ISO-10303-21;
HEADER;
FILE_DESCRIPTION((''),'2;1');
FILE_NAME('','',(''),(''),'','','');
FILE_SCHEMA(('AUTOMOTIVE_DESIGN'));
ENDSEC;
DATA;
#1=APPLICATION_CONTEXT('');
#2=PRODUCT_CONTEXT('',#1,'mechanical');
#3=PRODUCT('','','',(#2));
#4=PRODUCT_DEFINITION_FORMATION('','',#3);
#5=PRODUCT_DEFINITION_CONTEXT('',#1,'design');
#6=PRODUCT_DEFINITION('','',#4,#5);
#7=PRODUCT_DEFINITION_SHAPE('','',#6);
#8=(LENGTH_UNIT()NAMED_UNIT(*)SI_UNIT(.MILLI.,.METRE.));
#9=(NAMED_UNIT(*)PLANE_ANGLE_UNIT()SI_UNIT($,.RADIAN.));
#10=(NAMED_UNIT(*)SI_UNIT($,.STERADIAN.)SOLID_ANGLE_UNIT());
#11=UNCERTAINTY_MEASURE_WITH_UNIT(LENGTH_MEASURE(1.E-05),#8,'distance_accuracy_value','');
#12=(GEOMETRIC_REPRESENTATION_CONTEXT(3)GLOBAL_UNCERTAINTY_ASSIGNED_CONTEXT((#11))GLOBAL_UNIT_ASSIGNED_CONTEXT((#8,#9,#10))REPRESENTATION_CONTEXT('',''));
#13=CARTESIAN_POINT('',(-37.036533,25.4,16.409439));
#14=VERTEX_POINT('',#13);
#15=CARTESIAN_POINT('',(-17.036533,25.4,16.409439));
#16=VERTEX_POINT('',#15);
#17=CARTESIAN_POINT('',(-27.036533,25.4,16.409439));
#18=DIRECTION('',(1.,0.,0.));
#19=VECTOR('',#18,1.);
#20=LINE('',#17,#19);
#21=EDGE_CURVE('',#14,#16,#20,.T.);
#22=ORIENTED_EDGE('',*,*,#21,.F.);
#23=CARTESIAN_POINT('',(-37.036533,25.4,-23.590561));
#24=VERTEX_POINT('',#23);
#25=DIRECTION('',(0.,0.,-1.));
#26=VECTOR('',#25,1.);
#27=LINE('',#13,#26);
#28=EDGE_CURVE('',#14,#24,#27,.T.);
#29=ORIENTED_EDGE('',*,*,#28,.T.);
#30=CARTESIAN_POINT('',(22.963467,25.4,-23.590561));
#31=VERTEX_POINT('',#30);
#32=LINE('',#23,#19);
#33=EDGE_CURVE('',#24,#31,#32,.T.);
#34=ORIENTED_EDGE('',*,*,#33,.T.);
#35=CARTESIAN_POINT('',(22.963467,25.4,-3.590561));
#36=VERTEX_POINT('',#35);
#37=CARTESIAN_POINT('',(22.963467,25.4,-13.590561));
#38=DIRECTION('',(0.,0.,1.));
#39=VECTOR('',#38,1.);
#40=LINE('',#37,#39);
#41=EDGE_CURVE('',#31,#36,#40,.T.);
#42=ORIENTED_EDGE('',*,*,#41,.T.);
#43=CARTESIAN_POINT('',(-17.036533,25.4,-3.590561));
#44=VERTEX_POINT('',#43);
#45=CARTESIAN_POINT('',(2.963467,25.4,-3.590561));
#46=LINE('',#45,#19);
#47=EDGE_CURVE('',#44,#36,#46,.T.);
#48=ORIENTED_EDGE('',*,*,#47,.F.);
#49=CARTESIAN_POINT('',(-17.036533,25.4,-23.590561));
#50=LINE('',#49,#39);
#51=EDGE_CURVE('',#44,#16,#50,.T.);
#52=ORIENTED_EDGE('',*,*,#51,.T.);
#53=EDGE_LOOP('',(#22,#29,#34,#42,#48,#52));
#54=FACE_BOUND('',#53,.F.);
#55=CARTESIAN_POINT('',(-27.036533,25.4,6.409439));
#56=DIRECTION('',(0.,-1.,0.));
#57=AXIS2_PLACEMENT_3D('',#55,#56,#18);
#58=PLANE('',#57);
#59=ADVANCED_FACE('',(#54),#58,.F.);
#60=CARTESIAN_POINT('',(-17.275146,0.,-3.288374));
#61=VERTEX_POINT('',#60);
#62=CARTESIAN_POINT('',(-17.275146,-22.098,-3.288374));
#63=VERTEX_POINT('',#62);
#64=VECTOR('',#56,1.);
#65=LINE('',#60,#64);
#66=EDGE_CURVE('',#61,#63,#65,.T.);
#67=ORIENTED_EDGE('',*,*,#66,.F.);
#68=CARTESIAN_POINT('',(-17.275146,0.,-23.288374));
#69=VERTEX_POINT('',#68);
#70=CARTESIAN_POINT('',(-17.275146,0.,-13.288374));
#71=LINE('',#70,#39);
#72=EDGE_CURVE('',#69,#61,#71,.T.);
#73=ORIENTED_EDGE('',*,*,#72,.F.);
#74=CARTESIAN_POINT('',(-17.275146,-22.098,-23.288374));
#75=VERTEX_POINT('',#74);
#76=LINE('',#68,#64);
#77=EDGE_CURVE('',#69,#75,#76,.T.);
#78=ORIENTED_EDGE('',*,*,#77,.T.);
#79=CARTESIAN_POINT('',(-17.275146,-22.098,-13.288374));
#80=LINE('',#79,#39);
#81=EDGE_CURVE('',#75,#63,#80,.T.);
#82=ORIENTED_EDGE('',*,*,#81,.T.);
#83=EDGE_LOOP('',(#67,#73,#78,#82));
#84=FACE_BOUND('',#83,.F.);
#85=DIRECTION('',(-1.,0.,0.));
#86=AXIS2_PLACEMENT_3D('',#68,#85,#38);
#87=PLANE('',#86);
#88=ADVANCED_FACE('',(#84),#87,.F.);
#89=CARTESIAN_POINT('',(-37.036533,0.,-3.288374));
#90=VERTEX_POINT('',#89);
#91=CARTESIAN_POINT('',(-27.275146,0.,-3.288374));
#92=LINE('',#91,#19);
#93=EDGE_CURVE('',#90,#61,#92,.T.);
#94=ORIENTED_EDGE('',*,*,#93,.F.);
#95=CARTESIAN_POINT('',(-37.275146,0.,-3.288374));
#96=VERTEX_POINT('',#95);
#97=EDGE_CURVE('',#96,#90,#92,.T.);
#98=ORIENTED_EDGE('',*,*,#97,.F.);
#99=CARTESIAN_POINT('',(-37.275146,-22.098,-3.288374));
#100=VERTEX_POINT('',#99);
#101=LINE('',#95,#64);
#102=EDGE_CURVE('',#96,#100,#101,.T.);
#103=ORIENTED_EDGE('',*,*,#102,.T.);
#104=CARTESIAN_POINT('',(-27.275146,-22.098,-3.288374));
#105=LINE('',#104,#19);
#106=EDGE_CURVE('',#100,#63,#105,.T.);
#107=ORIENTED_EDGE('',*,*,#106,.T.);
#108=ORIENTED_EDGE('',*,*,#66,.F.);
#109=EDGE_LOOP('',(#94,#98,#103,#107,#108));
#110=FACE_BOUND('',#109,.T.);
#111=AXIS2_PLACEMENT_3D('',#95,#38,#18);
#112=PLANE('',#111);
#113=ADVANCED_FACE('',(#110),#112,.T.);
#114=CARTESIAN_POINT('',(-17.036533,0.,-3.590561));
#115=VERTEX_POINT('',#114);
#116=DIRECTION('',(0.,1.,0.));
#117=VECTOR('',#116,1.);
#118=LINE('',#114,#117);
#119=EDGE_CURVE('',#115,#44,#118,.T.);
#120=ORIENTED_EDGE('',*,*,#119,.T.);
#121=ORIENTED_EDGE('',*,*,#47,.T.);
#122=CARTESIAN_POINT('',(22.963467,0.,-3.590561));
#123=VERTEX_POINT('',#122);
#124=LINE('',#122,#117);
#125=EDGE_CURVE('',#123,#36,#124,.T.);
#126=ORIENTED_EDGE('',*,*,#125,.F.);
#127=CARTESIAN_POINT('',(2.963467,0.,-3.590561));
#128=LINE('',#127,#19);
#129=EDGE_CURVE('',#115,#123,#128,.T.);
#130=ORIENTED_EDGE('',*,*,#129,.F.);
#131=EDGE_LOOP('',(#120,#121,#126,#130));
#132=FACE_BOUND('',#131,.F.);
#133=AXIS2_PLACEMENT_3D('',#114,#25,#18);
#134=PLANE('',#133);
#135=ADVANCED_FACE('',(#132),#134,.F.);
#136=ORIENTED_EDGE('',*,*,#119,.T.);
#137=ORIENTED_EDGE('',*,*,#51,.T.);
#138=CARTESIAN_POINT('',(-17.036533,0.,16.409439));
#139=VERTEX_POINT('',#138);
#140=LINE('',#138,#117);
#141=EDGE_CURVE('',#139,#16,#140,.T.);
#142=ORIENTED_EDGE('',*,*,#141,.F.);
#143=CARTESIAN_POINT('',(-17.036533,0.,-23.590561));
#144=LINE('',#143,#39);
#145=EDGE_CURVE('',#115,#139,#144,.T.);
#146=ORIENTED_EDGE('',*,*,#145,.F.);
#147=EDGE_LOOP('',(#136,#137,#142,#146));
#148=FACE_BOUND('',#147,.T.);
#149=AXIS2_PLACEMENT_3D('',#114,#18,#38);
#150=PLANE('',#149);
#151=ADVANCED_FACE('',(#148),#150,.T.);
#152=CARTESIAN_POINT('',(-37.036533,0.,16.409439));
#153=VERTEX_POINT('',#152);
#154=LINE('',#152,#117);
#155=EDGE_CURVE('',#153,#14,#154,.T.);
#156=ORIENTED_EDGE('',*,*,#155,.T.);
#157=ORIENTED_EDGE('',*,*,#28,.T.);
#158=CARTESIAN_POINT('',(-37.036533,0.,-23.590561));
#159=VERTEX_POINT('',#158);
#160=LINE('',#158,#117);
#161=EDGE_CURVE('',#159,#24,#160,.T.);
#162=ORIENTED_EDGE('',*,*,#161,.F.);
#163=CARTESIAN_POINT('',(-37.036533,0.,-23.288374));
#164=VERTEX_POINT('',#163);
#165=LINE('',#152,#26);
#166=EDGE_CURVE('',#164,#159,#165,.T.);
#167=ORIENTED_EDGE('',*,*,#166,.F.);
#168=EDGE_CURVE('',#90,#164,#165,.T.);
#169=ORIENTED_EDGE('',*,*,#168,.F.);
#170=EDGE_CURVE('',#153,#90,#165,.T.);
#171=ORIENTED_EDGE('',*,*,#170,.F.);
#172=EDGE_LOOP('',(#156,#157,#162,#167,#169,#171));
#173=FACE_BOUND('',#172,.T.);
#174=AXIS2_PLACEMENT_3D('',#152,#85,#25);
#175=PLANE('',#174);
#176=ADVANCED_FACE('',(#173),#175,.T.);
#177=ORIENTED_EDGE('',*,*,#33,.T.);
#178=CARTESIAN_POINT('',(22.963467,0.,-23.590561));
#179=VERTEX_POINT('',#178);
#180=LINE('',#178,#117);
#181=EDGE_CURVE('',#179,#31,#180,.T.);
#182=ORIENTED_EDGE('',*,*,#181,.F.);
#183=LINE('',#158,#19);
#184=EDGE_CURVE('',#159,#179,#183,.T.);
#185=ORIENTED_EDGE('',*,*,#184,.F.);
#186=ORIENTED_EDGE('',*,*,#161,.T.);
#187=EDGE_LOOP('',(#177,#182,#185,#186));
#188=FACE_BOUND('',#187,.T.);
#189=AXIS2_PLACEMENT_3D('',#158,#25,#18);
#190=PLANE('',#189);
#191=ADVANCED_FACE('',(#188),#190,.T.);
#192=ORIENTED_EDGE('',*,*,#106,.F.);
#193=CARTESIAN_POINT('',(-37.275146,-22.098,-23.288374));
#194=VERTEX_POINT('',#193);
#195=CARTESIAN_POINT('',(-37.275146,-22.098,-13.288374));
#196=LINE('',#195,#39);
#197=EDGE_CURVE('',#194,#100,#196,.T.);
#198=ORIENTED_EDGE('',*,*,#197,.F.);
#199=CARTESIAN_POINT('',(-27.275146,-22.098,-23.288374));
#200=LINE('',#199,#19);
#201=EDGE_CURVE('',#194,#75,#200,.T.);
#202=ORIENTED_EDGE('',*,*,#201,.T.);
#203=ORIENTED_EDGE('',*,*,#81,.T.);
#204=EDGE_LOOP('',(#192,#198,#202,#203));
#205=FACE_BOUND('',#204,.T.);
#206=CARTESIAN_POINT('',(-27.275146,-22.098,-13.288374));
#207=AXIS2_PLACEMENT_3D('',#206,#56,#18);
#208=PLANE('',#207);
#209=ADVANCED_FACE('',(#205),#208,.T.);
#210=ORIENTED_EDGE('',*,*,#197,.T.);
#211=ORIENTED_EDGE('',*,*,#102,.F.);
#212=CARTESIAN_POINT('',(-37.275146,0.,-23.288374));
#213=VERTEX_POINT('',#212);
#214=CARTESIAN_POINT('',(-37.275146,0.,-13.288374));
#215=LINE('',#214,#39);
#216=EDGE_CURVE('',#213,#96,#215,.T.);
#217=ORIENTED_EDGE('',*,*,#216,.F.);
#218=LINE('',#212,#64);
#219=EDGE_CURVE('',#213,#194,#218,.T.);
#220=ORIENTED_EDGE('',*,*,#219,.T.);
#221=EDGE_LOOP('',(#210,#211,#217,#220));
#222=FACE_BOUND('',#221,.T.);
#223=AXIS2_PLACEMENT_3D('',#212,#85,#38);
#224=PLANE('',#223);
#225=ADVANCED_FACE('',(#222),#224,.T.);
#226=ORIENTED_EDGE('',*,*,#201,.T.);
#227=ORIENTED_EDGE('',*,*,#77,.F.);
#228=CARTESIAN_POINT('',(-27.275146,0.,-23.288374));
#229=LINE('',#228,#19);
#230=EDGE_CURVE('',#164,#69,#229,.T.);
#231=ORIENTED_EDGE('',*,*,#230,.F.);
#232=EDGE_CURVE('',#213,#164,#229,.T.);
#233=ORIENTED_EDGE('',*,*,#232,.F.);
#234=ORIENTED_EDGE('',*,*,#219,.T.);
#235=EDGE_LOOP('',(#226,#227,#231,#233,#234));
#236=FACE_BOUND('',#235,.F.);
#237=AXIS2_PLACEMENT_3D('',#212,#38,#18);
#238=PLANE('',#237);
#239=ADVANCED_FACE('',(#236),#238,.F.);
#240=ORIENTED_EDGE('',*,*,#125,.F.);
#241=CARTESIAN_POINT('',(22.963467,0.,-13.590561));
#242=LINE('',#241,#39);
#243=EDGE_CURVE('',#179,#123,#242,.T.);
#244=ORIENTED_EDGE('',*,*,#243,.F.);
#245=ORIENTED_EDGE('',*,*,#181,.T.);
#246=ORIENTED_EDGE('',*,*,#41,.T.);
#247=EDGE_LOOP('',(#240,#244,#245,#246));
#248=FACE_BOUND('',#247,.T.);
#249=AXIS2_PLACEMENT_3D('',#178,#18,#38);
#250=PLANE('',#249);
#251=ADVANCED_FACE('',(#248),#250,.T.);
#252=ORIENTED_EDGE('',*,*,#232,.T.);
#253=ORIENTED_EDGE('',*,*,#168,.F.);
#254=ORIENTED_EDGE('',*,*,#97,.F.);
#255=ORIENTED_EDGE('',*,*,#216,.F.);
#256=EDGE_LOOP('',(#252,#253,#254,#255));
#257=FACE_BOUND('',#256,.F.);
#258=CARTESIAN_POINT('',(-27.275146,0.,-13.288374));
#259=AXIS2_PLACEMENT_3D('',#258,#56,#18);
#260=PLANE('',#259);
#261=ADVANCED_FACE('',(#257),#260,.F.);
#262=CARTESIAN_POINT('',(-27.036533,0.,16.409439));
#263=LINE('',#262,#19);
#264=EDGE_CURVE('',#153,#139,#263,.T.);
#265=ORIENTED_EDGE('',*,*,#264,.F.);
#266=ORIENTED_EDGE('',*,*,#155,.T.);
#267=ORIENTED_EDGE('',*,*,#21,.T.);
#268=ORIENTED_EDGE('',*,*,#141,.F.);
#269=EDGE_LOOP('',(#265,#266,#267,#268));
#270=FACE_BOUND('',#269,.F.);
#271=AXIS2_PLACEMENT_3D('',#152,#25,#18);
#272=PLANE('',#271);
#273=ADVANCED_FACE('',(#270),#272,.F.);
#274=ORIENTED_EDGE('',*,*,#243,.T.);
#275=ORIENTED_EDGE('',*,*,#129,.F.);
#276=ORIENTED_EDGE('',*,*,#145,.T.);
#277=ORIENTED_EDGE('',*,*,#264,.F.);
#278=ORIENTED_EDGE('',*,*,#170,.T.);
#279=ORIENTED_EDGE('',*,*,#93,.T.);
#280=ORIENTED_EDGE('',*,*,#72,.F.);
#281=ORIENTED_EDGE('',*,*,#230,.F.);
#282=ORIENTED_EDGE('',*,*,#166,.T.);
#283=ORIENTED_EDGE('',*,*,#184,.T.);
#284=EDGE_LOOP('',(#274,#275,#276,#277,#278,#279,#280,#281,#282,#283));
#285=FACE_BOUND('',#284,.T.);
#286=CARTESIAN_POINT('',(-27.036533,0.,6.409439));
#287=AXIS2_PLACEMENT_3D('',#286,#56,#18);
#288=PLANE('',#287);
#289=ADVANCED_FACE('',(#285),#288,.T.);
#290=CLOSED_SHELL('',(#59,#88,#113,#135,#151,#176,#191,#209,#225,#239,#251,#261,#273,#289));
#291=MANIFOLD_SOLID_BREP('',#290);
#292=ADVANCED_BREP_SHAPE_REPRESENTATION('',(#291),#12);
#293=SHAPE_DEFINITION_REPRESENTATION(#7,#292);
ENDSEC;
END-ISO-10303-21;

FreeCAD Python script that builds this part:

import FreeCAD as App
import Part
import Sketcher
from FreeCAD import Vector

doc = App.newDocument("Part")
params = doc.addObject("Spreadsheet::Sheet", "Params")
for row, (alias, value) in enumerate([
    ("sketch1_width", "60 mm"),
    ("pad1_length", "25.4 mm"),
    ("sketch2_width", "20 mm"),
    ("pad2_length", "22.098 mm"),
], start=1):
    params.set(f"A{row}", alias)
    params.set(f"B{row}", "=" + value)
    params.setAlias(f"B{row}", alias)

body = doc.addObject("PartDesign::Body", "Body")

# Sketch on XZ plane
sketch1 = body.newObject("Sketcher::SketchObject", "Sketch")
sketch1.AttachmentSupport = (doc.getObject("XZ_Plane"), [""])
sketch1.MapMode = "FlatFace"
sketch1.addGeometry([
    Part.LineSegment(Vector(-37, 16, 0), Vector(-37, -24, 0)),  # 0
    Part.LineSegment(Vector(-37, -24, 0), Vector(23, -24, 0)),  # 1
    Part.LineSegment(Vector(23, -24, 0), Vector(23, -4, 0)),  # 2
    Part.LineSegment(Vector(23, -4, 0), Vector(-17, -4, 0)),  # 3
    Part.LineSegment(Vector(-17, -4, 0), Vector(-17, 16, 0)),  # 4
    Part.LineSegment(Vector(-17, 16, 0), Vector(-37, 16, 0)),  # 5
], False)
sketch1.addConstraint([
    Sketcher.Constraint("Coincident", 0, 2, 1, 1),
    Sketcher.Constraint("Coincident", 1, 2, 2, 1),
    Sketcher.Constraint("Coincident", 2, 2, 3, 1),
    Sketcher.Constraint("Coincident", 3, 2, 4, 1),
    Sketcher.Constraint("Coincident", 4, 2, 5, 1),
    Sketcher.Constraint("Coincident", 5, 2, 0, 1),
    Sketcher.Constraint("Vertical", 0),
    Sketcher.Constraint("Horizontal", 1),
    Sketcher.Constraint("Vertical", 2),
    Sketcher.Constraint("Horizontal", 3),
    Sketcher.Constraint("Vertical", 4),
    Sketcher.Constraint("Horizontal", 5),
    Sketcher.Constraint("Equal", 3, 0),
    Sketcher.Constraint("Equal", 5, 2),
    Sketcher.Constraint("Equal", 2, 4),
    Sketcher.Constraint("DistanceX", 1, 1, 1, 2, 60.0),
    Sketcher.Constraint("DistanceY", 0, 2, -1, 1, 23.590561),
    Sketcher.Constraint("DistanceX", 0, 2, -1, 1, 37.036533),
])
sketch1.setExpression("Constraints[15]", "Params.sketch1_width")
pad1 = body.newObject("PartDesign::Pad", "Pad")
pad1.Profile = sketch1
pad1.setExpression("Length", "Params.pad1_length")
pad1.Reversed = True

# Sketch on XZ plane
sketch2 = body.newObject("Sketcher::SketchObject", "Sketch001")
sketch2.AttachmentSupport = (doc.getObject("XZ_Plane"), [""])
sketch2.MapMode = "FlatFace"
sketch2.addGeometry([
    Part.LineSegment(Vector(-37, -3, 0), Vector(-37, -23, 0)),
    Part.LineSegment(Vector(-37, -23, 0), Vector(-17, -23, 0)),
    Part.LineSegment(Vector(-17, -23, 0), Vector(-17, -3, 0)),
    Part.LineSegment(Vector(-17, -3, 0), Vector(-37, -3, 0)),
], False)
sketch2.addConstraint([
    Sketcher.Constraint("Coincident", 0, 2, 1, 1),
    Sketcher.Constraint("Coincident", 1, 2, 2, 1),
    Sketcher.Constraint("Coincident", 2, 2, 3, 1),
    Sketcher.Constraint("Coincident", 3, 2, 0, 1),
    Sketcher.Constraint("Vertical", 0),
    Sketcher.Constraint("Horizontal", 1),
    Sketcher.Constraint("Vertical", 2),
    Sketcher.Constraint("Horizontal", 3),
    Sketcher.Constraint("Equal", 3, 0),
    Sketcher.Constraint("DistanceX", 1, 1, 1, 2, 20.0),
    Sketcher.Constraint("DistanceX", 0, 2, -1, 1, 37.275146),
    Sketcher.Constraint("DistanceY", 0, 2, -1, 1, 23.288374),
])
sketch2.setExpression("Constraints[9]", "Params.sketch2_width")
pad2 = body.newObject("PartDesign::Pad", "Pad001")
pad2.Profile = sketch2
pad2.setExpression("Length", "Params.pad2_length")

doc.recompute()
